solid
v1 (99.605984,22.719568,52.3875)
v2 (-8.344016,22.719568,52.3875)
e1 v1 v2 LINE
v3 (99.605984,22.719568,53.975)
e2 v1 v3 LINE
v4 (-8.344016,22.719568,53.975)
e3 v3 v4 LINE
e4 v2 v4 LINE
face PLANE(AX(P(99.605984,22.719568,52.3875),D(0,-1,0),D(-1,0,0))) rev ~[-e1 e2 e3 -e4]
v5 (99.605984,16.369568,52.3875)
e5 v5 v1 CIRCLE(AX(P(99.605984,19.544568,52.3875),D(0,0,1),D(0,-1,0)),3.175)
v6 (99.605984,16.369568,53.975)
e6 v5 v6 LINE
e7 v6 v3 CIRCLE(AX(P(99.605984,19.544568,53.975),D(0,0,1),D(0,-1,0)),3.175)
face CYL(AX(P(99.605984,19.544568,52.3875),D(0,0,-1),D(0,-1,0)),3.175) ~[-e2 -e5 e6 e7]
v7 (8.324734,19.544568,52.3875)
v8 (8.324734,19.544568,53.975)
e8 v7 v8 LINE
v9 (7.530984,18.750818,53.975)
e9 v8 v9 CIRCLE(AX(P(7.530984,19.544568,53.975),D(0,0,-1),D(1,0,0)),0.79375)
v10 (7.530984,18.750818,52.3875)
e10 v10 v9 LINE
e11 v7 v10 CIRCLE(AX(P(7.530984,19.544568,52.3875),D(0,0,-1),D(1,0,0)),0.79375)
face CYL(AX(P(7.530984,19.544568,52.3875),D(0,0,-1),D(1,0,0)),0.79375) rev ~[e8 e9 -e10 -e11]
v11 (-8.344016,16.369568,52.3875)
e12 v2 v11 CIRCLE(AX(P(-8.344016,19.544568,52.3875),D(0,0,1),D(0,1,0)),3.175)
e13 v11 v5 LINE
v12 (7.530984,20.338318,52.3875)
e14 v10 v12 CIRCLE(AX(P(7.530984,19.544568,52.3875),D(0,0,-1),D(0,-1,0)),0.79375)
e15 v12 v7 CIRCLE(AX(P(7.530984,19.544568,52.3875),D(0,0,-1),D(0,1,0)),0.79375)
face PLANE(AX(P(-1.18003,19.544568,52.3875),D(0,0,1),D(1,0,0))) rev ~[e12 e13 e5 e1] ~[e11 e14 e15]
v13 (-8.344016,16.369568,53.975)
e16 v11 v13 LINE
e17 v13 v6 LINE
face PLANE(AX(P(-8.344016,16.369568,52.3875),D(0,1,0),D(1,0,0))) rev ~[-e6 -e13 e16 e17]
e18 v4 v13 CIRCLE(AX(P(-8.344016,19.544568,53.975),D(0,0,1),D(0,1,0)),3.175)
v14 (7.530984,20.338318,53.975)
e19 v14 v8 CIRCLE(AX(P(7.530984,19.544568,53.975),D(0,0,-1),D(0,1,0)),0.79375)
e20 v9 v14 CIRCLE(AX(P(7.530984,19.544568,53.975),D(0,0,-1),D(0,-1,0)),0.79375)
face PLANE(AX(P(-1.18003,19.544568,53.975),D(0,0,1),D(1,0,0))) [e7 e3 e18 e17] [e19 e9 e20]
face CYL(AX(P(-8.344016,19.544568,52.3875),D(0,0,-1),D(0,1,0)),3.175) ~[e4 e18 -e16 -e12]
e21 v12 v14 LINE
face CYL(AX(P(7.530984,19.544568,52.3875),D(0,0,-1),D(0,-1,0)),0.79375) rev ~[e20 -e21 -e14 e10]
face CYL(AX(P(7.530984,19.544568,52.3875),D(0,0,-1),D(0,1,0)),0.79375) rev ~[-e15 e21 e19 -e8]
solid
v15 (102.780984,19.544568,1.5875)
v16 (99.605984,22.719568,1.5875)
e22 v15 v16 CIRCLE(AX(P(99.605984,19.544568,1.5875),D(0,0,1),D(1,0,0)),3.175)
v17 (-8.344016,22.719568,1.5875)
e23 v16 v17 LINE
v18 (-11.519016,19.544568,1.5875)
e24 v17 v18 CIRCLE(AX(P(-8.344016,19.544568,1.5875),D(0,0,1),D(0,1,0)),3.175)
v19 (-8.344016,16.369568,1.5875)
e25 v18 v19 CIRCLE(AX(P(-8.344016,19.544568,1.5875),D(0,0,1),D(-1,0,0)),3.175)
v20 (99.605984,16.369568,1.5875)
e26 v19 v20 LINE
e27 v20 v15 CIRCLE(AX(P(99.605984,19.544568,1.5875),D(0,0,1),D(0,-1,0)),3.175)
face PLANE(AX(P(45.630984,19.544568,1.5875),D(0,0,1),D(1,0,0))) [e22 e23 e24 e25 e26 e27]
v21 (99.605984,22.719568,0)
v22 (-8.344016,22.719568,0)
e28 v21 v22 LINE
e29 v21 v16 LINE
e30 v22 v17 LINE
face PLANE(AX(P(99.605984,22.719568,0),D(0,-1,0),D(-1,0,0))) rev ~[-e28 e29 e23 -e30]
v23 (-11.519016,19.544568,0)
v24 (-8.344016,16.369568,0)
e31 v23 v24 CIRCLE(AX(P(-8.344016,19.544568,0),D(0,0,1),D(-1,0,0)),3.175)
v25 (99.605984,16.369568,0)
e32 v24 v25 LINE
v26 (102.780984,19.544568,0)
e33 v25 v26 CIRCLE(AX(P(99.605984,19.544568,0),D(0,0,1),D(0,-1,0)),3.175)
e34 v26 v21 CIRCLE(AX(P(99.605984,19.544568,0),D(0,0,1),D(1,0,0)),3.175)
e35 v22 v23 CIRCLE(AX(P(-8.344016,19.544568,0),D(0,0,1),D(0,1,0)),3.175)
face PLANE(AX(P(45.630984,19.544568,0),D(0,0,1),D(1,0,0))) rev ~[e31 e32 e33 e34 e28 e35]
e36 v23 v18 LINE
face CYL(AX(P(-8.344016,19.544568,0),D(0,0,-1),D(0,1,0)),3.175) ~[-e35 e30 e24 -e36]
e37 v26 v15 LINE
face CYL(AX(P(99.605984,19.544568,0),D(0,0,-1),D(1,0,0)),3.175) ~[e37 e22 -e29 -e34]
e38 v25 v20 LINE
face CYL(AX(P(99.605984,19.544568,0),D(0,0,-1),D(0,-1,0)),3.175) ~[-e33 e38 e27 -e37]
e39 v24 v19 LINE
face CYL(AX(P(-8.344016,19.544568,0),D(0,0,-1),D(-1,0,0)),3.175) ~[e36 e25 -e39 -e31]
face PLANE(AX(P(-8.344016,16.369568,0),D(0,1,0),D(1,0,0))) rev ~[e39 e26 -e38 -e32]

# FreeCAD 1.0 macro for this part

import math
import FreeCAD as App
import Part
import Sketcher
from FreeCAD import Vector
Q = App.Units.Quantity

doc = App.newDocument("Part")
body = doc.addObject("PartDesign::Body", "Body")

# Sketch on XY plane
sketch1 = doc.addObject("Sketcher::SketchObject", "Sketch")
body.addObject(sketch1)
sketch1.AttachmentSupport = (doc.XY_Plane, [""])
sketch1.MapMode = "FlatFace"
sketch1.addGeometry([
    Part.ArcOfCircle(Part.Circle(Vector(-8.3, 19.5, 0), Vector(0, 0, 1), 3.2), math.radians(180), math.radians(270)),  # 0
    Part.LineSegment(Vector(-8.3, 16.4, 0), Vector(99.6, 16.4, 0)),  # 1
    Part.ArcOfCircle(Part.Circle(Vector(99.6, 19.5, 0), Vector(0, 0, 1), 3.2), math.radians(-90), math.radians(0)),  # 2
    Part.ArcOfCircle(Part.Circle(Vector(99.6, 19.5, 0), Vector(0, 0, 1), 3.2), math.radians(0), math.radians(90)),  # 3
    Part.LineSegment(Vector(99.6, 22.7, 0), Vector(-8.3, 22.7, 0)),  # 4
    Part.ArcOfCircle(Part.Circle(Vector(-8.3, 19.5, 0), Vector(0, 0, 1), 3.2), math.radians(90), math.radians(180)),  # 5
], False)
sketch1.addConstraint([
    Sketcher.Constraint("Tangent", 0, 2, 1, 1),
    Sketcher.Constraint("Tangent", 1, 2, 2, 1),
    Sketcher.Constraint("Tangent", 2, 2, 3, 1),
    Sketcher.Constraint("Tangent", 3, 2, 4, 1),
    Sketcher.Constraint("Tangent", 4, 2, 5, 1),
    Sketcher.Constraint("Tangent", 5, 2, 0, 1),
    Sketcher.Constraint("Horizontal", 1),
    Sketcher.Constraint("Horizontal", 4),
    Sketcher.Constraint("Equal", 0, 2),
    Sketcher.Constraint("Equal", 2, 3),
    Sketcher.Constraint("Horizontal", 5, 3, 2, 2),
    Sketcher.Constraint("Horizontal", 2, 2, 5, 2),
    Sketcher.Constraint("Radius", 0, Q("0.125 in")),
    Sketcher.Constraint("DistanceX", 1, 1, 1, 2, Q("4.25 in")),
    Sketcher.Constraint("DistanceX", 0, 3, -1, 1, Q("8.344016 mm")),
    Sketcher.Constraint("DistanceY", -1, 1, 0, 3, Q("19.544568 mm")),
])
pad1 = doc.addObject("PartDesign::Pad", "Pad")
body.addObject(pad1)
pad1.Profile = sketch1
pad1.Length = Q("0.0625 in")
body2 = doc.addObject("PartDesign::Body", "Body001")

# Sketch on XY plane
sketch2 = doc.addObject("Sketcher::SketchObject", "Sketch001")
body2.addObject(sketch2)
sketch2.AttachmentSupport = (doc.getObject("XY_Plane001"), [""])
sketch2.MapMode = "FlatFace"
sketch2.AttachmentOffset = App.Placement(Vector(0, 0, 2.0625 * 25.4), App.Rotation())
sketch2.addGeometry([
    Part.ArcOfCircle(Part.Circle(Vector(-8.3, 19.5, 0), Vector(0, 0, 1), 3.2), math.radians(90), math.radians(270)),  # 0
    Part.LineSegment(Vector(-8.3, 16.4, 0), Vector(99.6, 16.4, 0)),  # 1
    Part.ArcOfCircle(Part.Circle(Vector(99.6, 19.5, 0), Vector(0, 0, 1), 3.2), math.radians(-90), math.radians(90)),  # 2
    Part.LineSegment(Vector(99.6, 22.7, 0), Vector(-8.3, 22.7, 0)),  # 3
    Part.ArcOfCircle(Part.Circle(Vector(7.5, 19.5, 0), Vector(0, 0, 1), 0.8), math.radians(90), math.radians(270)),  # 4
    Part.ArcOfCircle(Part.Circle(Vector(7.5, 19.5, 0), Vector(0, 0, 1), 0.8), math.radians(0), math.radians(90)),  # 5
    Part.ArcOfCircle(Part.Circle(Vector(7.5, 19.5, 0), Vector(0, 0, 1), 0.8), math.radians(-90), math.radians(0)),  # 6
], False)
sketch2.addConstraint([
    Sketcher.Constraint("Tangent", 0, 2, 1, 1),
    Sketcher.Constraint("Tangent", 1, 2, 2, 1),
    Sketcher.Constraint("Tangent", 2, 2, 3, 1),
    Sketcher.Constraint("Tangent", 3, 2, 0, 1),
    Sketcher.Constraint("Tangent", 4, 1, 5, 2),
    Sketcher.Constraint("Tangent", 5, 1, 6, 2),
    Sketcher.Constraint("Tangent", 6, 1, 4, 2),
    Sketcher.Constraint("Horizontal", 1),
    Sketcher.Constraint("Horizontal", 3),
    Sketcher.Constraint("Horizontal", 2, 3, 4, 3),
    Sketcher.Constraint("Horizontal", 6, 3, 5, 1),
    Sketcher.Constraint("Vertical", 6, 3, 4, 1),
    Sketcher.Constraint("Vertical", 4, 1, 6, 1),
    Sketcher.Constraint("Radius", 0, Q("0.125 in")),
    Sketcher.Constraint("Radius", 4, Q("0.03125 in")),
    Sketcher.Constraint("DistanceX", 1, 1, 1, 2, Q("4.25 in")),
    Sketcher.Constraint("DistanceX", 0, 3, 4, 3, Q("0.625 in")),
    Sketcher.Constraint("DistanceX", 0, 3, -1, 1, Q("8.344016 mm")),
    Sketcher.Constraint("DistanceY", -1, 1, 0, 3, Q("19.544568 mm")),
])
pad2 = doc.addObject("PartDesign::Pad", "Pad001")
body2.addObject(pad2)
pad2.Profile = sketch2
pad2.Length = Q("0.0625 in")

doc.recompute()
